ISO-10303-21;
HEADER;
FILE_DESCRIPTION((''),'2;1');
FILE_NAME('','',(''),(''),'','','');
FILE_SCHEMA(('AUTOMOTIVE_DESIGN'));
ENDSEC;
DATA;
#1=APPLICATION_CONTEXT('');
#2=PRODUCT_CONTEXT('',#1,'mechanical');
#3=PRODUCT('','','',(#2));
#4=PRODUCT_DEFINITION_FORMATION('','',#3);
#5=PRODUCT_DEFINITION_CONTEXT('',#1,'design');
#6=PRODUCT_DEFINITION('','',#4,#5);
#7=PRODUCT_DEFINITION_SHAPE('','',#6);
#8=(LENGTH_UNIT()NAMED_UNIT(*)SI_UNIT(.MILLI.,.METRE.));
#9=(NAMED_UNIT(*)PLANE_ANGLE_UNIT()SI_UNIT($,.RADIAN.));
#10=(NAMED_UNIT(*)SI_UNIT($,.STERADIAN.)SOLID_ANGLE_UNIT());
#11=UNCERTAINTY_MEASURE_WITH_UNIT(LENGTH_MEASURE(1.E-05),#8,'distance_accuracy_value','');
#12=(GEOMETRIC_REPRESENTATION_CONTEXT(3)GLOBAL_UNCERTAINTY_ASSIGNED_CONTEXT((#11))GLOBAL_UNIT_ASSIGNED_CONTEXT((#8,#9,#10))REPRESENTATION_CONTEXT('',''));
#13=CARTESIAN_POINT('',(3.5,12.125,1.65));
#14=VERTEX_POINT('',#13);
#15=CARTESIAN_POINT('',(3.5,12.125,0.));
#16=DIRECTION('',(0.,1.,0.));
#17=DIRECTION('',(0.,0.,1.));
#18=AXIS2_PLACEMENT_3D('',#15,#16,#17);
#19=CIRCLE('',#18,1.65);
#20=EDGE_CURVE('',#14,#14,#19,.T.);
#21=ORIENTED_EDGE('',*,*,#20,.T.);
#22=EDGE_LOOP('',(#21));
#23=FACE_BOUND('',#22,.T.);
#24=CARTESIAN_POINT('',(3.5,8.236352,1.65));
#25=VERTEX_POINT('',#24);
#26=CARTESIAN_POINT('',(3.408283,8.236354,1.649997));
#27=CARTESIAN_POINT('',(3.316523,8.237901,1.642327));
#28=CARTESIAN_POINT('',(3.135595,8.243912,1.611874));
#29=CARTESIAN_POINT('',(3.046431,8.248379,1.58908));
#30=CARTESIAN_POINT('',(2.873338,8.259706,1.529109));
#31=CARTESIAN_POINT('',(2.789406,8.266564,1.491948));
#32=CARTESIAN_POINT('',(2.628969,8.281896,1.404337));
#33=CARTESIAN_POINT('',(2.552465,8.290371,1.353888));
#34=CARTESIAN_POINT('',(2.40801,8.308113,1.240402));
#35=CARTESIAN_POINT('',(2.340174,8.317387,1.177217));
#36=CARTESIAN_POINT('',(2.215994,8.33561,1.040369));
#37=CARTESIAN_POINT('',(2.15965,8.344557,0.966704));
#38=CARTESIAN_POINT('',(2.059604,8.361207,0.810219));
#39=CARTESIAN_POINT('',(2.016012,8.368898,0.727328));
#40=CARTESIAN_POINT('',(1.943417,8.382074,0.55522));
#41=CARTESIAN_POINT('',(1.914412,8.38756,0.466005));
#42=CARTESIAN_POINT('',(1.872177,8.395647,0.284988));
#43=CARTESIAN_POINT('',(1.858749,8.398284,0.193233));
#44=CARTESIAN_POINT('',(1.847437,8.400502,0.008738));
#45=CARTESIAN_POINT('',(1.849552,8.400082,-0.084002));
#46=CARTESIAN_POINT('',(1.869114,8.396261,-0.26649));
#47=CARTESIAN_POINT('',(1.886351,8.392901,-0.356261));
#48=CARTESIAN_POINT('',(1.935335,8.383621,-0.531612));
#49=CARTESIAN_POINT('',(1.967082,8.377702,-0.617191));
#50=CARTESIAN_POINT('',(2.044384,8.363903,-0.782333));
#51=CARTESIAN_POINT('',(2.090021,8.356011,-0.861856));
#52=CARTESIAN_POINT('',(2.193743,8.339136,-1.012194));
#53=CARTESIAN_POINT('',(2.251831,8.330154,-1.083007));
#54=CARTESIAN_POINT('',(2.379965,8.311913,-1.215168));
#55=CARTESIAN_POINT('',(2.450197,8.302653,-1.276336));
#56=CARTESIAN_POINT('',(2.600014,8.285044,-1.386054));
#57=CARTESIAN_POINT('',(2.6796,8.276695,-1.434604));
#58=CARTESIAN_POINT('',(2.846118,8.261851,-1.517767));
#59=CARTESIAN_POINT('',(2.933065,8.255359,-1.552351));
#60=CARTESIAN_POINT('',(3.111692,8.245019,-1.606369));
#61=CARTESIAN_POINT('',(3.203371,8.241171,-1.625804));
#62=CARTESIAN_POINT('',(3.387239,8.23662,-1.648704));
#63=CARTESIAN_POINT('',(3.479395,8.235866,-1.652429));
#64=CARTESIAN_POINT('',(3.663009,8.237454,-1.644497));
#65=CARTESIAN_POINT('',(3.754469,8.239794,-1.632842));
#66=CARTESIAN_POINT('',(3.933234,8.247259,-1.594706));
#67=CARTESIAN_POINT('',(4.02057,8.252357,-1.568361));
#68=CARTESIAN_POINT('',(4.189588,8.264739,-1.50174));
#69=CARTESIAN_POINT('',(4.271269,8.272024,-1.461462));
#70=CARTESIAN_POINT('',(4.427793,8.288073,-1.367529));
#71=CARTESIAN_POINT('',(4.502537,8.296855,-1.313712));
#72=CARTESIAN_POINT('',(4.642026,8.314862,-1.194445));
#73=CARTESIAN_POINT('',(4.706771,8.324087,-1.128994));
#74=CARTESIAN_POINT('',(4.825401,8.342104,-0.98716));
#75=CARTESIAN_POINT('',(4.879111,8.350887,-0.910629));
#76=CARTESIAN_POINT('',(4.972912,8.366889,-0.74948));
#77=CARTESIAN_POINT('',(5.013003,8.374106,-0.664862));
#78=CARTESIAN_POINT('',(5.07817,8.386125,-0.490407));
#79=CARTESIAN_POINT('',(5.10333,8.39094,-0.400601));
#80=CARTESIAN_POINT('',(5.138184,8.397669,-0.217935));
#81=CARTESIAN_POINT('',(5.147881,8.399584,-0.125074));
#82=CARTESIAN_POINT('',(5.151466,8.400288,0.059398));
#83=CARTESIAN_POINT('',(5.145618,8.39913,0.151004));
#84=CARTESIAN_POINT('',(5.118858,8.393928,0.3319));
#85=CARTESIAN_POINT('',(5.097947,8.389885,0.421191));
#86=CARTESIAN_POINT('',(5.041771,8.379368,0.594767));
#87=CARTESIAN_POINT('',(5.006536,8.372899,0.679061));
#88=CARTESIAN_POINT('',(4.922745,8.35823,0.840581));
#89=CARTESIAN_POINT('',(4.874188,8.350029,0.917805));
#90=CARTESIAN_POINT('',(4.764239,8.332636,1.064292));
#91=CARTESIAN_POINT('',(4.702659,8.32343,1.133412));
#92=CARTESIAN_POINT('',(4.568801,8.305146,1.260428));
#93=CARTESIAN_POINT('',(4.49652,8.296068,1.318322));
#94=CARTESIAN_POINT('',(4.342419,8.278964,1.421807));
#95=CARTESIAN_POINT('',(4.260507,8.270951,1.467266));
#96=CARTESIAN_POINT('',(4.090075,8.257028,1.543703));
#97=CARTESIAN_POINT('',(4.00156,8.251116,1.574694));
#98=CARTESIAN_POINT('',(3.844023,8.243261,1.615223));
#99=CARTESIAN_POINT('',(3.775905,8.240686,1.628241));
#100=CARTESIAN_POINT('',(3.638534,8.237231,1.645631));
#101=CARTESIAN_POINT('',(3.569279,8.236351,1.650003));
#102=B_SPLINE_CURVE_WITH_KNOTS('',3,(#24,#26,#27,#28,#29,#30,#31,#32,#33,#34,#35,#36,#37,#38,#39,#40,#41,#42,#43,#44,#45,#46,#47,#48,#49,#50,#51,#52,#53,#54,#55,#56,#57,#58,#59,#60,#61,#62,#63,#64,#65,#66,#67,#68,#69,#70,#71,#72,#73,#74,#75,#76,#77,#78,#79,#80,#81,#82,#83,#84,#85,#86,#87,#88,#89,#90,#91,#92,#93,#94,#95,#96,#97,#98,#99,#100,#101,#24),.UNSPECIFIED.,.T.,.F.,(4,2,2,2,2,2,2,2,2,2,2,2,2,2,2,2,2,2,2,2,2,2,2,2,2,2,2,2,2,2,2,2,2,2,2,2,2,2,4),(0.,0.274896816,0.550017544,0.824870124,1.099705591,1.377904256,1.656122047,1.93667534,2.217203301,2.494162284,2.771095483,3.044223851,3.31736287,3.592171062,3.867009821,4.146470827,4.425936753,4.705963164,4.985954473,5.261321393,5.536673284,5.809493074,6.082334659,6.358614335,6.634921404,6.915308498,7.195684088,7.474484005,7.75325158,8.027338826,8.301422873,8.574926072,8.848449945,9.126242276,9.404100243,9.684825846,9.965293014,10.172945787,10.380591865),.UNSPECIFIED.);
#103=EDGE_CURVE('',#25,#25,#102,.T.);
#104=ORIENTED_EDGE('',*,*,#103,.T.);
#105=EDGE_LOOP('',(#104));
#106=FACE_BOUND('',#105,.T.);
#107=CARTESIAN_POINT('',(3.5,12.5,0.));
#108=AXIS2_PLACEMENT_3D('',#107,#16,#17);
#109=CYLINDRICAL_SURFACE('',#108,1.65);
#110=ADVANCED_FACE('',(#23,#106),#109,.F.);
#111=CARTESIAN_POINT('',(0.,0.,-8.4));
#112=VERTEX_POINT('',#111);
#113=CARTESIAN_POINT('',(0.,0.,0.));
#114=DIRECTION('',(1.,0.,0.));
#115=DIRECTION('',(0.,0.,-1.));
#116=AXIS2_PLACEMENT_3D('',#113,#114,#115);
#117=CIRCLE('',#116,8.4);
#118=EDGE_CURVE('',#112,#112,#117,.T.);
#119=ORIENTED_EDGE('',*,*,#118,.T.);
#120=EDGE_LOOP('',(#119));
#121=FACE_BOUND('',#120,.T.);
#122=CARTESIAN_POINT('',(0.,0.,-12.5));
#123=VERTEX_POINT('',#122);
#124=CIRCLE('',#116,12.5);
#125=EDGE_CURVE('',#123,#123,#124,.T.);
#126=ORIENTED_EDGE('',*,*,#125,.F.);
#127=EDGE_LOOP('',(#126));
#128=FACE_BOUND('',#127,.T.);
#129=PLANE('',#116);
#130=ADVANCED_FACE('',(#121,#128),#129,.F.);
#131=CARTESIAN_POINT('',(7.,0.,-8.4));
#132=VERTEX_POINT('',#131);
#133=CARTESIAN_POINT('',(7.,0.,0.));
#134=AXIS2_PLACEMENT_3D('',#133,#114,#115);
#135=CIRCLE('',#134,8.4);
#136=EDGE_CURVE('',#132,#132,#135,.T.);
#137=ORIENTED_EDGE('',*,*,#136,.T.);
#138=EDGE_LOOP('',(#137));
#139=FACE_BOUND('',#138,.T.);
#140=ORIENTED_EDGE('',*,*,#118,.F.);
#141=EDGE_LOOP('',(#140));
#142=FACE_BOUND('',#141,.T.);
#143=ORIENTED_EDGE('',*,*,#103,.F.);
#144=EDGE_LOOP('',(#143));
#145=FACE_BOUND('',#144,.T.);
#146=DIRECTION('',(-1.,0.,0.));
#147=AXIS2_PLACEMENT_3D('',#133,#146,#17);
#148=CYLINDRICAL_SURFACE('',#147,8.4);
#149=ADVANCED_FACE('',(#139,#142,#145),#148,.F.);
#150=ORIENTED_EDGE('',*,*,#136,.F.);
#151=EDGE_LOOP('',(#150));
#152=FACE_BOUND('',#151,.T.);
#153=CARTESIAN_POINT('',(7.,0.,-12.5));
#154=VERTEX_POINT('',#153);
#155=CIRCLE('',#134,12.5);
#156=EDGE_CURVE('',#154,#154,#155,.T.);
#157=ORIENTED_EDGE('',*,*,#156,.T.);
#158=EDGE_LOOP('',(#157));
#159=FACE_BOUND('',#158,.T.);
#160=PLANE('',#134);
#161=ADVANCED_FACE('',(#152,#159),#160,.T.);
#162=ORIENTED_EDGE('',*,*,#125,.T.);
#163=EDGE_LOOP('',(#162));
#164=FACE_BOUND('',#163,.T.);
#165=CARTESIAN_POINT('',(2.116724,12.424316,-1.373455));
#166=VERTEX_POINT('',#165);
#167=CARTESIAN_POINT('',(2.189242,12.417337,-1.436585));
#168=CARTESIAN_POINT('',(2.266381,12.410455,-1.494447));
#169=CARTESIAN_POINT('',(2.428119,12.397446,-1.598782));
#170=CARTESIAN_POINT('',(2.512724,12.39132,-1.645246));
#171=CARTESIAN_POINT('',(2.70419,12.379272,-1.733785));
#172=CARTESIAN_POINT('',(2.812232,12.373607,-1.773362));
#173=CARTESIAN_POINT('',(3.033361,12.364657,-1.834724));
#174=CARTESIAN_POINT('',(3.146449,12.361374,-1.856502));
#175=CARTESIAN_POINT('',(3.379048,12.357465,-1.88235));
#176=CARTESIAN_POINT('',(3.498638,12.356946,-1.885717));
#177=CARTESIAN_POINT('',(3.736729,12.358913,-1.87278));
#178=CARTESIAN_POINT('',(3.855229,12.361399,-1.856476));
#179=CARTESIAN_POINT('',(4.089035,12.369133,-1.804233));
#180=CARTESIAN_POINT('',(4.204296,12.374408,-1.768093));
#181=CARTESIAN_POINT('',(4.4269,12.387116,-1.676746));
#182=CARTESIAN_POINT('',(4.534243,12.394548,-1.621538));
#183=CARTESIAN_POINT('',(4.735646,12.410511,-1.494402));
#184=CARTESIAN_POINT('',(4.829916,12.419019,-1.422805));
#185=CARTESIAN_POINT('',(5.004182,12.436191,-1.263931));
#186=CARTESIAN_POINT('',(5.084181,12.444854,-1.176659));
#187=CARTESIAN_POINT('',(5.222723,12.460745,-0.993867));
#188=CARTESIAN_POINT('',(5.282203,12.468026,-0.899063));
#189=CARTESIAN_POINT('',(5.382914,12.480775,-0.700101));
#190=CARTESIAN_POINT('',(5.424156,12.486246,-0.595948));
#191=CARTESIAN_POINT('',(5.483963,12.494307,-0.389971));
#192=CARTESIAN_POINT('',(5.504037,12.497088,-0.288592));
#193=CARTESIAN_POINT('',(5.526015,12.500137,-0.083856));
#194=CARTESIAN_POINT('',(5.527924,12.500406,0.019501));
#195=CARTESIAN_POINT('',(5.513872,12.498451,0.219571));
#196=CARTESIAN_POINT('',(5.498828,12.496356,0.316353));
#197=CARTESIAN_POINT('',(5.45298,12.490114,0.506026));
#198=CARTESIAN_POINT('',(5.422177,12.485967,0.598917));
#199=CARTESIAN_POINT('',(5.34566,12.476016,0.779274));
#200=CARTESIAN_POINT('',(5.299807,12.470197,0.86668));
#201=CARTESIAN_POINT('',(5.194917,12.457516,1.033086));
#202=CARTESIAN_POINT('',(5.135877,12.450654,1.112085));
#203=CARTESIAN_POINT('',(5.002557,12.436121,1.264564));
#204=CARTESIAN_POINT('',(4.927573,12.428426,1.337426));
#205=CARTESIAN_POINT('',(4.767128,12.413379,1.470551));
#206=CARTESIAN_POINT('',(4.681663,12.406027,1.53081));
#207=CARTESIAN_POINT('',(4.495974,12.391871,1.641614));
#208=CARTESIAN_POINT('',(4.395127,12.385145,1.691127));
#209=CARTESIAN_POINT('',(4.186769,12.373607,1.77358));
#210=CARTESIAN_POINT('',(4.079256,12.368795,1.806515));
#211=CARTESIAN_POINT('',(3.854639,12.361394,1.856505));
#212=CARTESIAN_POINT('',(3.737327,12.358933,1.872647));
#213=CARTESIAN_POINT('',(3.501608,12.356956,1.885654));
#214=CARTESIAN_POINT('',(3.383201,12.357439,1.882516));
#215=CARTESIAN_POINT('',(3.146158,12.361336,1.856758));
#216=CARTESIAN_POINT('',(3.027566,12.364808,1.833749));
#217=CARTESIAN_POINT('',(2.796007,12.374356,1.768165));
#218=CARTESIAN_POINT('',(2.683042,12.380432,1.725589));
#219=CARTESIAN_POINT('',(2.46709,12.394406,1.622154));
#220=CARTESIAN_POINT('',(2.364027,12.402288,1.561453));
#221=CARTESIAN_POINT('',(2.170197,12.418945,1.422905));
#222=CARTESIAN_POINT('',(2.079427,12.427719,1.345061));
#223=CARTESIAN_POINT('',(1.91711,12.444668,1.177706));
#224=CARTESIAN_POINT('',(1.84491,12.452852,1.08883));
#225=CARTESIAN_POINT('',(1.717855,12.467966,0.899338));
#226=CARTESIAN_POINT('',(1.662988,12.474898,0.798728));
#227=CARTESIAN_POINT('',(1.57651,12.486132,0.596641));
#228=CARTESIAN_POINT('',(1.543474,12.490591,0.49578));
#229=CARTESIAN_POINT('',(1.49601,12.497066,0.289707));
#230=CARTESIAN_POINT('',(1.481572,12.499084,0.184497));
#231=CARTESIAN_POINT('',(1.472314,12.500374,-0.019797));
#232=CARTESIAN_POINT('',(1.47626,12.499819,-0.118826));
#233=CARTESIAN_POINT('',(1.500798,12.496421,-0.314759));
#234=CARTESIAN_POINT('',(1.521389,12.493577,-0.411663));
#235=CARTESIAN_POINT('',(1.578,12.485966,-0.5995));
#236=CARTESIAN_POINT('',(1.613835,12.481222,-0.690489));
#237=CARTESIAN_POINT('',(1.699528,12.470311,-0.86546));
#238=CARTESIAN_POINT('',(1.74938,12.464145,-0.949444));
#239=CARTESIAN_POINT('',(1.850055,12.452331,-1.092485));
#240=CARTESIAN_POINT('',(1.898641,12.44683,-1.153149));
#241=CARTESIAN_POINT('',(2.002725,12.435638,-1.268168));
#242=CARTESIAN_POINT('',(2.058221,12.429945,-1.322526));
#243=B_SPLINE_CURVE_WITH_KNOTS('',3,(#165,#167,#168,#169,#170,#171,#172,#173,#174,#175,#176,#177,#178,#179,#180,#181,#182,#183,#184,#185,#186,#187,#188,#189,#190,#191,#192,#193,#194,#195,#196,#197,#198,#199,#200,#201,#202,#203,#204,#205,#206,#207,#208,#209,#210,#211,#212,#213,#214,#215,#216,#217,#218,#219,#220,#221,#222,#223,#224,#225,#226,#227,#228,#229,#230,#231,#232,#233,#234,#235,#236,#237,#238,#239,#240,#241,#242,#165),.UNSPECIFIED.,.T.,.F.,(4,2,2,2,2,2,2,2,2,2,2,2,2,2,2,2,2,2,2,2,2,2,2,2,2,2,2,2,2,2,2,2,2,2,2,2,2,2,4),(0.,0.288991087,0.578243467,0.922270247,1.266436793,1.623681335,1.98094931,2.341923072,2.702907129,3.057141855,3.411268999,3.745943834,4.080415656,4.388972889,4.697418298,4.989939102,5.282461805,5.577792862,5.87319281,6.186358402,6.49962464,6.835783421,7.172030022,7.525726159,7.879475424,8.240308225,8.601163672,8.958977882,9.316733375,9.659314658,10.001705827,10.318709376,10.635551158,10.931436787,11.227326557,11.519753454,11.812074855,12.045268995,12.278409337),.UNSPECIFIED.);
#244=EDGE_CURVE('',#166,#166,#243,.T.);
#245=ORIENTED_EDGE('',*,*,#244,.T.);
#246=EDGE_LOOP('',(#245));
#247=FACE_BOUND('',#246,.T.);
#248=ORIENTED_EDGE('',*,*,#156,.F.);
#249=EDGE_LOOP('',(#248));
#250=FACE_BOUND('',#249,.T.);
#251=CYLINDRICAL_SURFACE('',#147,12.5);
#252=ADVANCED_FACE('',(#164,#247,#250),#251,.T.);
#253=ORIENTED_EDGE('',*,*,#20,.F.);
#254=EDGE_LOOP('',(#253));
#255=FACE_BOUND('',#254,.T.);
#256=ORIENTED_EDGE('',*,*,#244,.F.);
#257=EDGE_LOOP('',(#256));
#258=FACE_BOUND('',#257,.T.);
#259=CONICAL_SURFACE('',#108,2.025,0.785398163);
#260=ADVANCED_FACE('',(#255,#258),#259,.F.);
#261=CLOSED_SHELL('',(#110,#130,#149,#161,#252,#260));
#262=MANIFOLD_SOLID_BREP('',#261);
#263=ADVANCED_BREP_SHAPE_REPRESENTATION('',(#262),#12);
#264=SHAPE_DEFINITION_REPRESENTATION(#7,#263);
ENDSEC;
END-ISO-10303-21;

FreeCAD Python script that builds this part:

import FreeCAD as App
import Part
import Sketcher
from FreeCAD import Vector
Q = App.Units.Quantity

doc = App.newDocument("Part")
body = doc.addObject("PartDesign::Body", "Body")

# Sketch on YZ plane
sketch1 = doc.addObject("Sketcher::SketchObject", "Sketch")
body.addObject(sketch1)
sketch1.AttachmentSupport = (doc.YZ_Plane, [""])
sketch1.MapMode = "FlatFace"
sketch1.addGeometry(Part.Circle(Vector(0, 0, 0), Vector(0, 0, 1), 12), False)
sketch1.addGeometry(Part.Circle(Vector(0, 0, 0), Vector(0, 0, 1), 8), False)
sketch1.addConstraint(Sketcher.Constraint("Coincident", 0, 3, -1, 1))
sketch1.addConstraint(Sketcher.Constraint("Coincident", 1, 3, -1, 1))
sketch1.addConstraint(Sketcher.Constraint("Diameter", 0, Q("25 mm")))
sketch1.addConstraint(Sketcher.Constraint("Diameter", 1, Q("16.8 mm")))
pad1 = doc.addObject("PartDesign::Pad", "Pad")
body.addObject(pad1)
pad1.Profile = sketch1
pad1.Length = 7

# Sketch on XZ plane
sketch2 = doc.addObject("Sketcher::SketchObject", "Sketch001")
body.addObject(sketch2)
sketch2.AttachmentSupport = (doc.XZ_Plane, [""])
sketch2.MapMode = "FlatFace"
sketch2.AttachmentOffset = App.Placement(Vector(0, 0, -12.5), App.Rotation())
sketch2.addGeometry(Part.Circle(Vector(3.5, 0, 0), Vector(0, 0, 1), 1.6), False)
sketch2.addConstraint(Sketcher.Constraint("PointOnObject", 0, 3, -1))
sketch2.addConstraint(Sketcher.Constraint("Diameter", 0, Q("3.3 mm")))
sketch2.addConstraint(Sketcher.Constraint("DistanceX", -1, 1, 0, 3, Q("3.5 mm")))
doc.recompute()
hole = doc.addObject("PartDesign::Hole", "Hole")
body.addObject(hole)
hole.Profile = sketch2
hole.ThreadType = "None"
hole.Diameter = 3.3
hole.DepthType = "Dimension"
hole.Depth = 11.5
hole.DrillPoint = "Angled"
hole.DrillPointAngle = 118
hole.HoleCutType = "Countersink"
hole.HoleCutDiameter = 4.05
hole.HoleCutCountersinkAngle = 90
hole.Reversed = True

doc.recompute()
